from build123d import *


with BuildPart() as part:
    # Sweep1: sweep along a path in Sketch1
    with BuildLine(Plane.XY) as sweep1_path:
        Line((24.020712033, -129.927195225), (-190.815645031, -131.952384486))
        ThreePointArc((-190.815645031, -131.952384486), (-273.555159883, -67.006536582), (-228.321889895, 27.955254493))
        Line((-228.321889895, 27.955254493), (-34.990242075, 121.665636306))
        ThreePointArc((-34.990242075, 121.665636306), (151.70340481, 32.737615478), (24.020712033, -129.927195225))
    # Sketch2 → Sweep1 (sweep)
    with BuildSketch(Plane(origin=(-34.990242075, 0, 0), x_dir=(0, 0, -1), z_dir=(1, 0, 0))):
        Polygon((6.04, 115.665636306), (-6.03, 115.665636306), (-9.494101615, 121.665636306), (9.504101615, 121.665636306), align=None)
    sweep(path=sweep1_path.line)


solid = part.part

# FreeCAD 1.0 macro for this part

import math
import FreeCAD as App
import Part
import Sketcher
Q = App.Units.Quantity

doc = App.newDocument("Part")
params = doc.addObject("Spreadsheet::Sheet", "Params")
for row, (alias, value) in enumerate([
    ("sketch1_height", "12.07 mm"),
    ("sketch2_radius", "84.17 mm"),
    ("sketch2_radius2", "132.43 mm"),
], start=1):
    params.set(f"A{row}", alias)
    params.set(f"B{row}", "=" + value)
    params.setAlias(f"B{row}", alias)

body = doc.addObject("PartDesign::Body", "Body")

sketch1 = body.newObject("Sketcher::SketchObject", "Sketch")
sketch1.AttachmentSupport = (doc.getObject("YZ_Plane"), [""])
sketch1.MapMode = "FlatFace"
sketch1.AttachmentOffset = App.Placement(App.Vector(0, 0, -34.990242), App.Rotation())
sketch1.addGeometry(Part.LineSegment(App.Vector(116, 6, 0), App.Vector(116, -6, 0)), False)
sketch1.addGeometry(Part.LineSegment(App.Vector(116, -6, 0), App.Vector(122, -10, 0)), False)
sketch1.addGeometry(Part.LineSegment(App.Vector(122, -10, 0), App.Vector(122, 9, 0)), False)
sketch1.addGeometry(Part.LineSegment(App.Vector(122, 9, 0), App.Vector(116, 6, 0)), False)
sketch1.addConstraint(Sketcher.Constraint("Coincident", 0, 2, 1, 1))
sketch1.addConstraint(Sketcher.Constraint("Coincident", 1, 2, 2, 1))
sketch1.addConstraint(Sketcher.Constraint("Coincident", 2, 2, 3, 1))
sketch1.addConstraint(Sketcher.Constraint("Coincident", 3, 2, 0, 1))
sketch1.addConstraint(Sketcher.Constraint("Vertical", 0))
sketch1.addConstraint(Sketcher.Constraint("Vertical", 2))
sketch1.addConstraint(Sketcher.Constraint("Equal", 1, 3))
sketch1.addConstraint(Sketcher.Constraint("Angle", 1, Q("-30 deg")))
sketch1.addConstraint(Sketcher.Constraint("DistanceX", 0, 2, 1, 2, 6.0))
sketch1.addConstraint(Sketcher.Constraint("DistanceY", 0, 2, 0, 1, 12.07))
sketch1.addConstraint(Sketcher.Constraint("DistanceY", 0, 2, -1, 1, 6.04))
sketch1.addConstraint(Sketcher.Constraint("DistanceX", -1, 1, 0, 2, 115.665636))
sketch1.setExpression("Constraints[9]", "Params.sketch1_height")

sketch2 = body.newObject("Sketcher::SketchObject", "Sketch001")
sketch2.AttachmentSupport = (doc.getObject("XY_Plane"), [""])
sketch2.MapMode = "FlatFace"
sketch2.addGeometry(Part.LineSegment(App.Vector(24, -130, 0), App.Vector(-191, -132, 0)), False)
sketch2.addGeometry(Part.ArcOfCircle(Part.Circle(App.Vector(-192, -48, 0), App.Vector(0, 0, 1), 84), math.radians(116), math.radians(271)), False)
sketch2.addGeometry(Part.LineSegment(App.Vector(-228, 28, 0), App.Vector(-35, 122, 0)), False)
sketch2.addGeometry(Part.ArcOfCircle(Part.Circle(App.Vector(23, 2, 0), App.Vector(0, 0, 1), 132), math.radians(-89), math.radians(116)), False)
sketch2.addConstraint(Sketcher.Constraint("Tangent", 0, 2, 1, 2))
sketch2.addConstraint(Sketcher.Constraint("Tangent", 1, 1, 2, 1))
sketch2.addConstraint(Sketcher.Constraint("Tangent", 2, 2, 3, 2))
sketch2.addConstraint(Sketcher.Constraint("Tangent", 3, 1, 0, 1))
sketch2.addConstraint(Sketcher.Constraint("Radius", 1, 84.17))
sketch2.addConstraint(Sketcher.Constraint("Radius", 3, 132.43))
sketch2.addConstraint(Sketcher.Constraint("DistanceX", 1, 1, 3, 1, 252.342602))
sketch2.addConstraint(Sketcher.Constraint("DistanceX", 1, 3, -1, 1, 191.609052))
sketch2.addConstraint(Sketcher.Constraint("DistanceY", -1, 1, 3, 3, 2.496921))
sketch2.addConstraint(Sketcher.Constraint("DistanceX", 1, 1, -1, 1, 228.32189))
sketch2.setExpression("Constraints[4]", "Params.sketch2_radius")
sketch2.setExpression("Constraints[5]", "Params.sketch2_radius2")
doc.recompute()

additivepipe = body.newObject("PartDesign::AdditivePipe", "AdditivePipe")
additivepipe.Profile = sketch1
additivepipe.Spine = (sketch2, ["Edge1", "Edge2", "Edge3", "Edge4"])

doc.recompute()
